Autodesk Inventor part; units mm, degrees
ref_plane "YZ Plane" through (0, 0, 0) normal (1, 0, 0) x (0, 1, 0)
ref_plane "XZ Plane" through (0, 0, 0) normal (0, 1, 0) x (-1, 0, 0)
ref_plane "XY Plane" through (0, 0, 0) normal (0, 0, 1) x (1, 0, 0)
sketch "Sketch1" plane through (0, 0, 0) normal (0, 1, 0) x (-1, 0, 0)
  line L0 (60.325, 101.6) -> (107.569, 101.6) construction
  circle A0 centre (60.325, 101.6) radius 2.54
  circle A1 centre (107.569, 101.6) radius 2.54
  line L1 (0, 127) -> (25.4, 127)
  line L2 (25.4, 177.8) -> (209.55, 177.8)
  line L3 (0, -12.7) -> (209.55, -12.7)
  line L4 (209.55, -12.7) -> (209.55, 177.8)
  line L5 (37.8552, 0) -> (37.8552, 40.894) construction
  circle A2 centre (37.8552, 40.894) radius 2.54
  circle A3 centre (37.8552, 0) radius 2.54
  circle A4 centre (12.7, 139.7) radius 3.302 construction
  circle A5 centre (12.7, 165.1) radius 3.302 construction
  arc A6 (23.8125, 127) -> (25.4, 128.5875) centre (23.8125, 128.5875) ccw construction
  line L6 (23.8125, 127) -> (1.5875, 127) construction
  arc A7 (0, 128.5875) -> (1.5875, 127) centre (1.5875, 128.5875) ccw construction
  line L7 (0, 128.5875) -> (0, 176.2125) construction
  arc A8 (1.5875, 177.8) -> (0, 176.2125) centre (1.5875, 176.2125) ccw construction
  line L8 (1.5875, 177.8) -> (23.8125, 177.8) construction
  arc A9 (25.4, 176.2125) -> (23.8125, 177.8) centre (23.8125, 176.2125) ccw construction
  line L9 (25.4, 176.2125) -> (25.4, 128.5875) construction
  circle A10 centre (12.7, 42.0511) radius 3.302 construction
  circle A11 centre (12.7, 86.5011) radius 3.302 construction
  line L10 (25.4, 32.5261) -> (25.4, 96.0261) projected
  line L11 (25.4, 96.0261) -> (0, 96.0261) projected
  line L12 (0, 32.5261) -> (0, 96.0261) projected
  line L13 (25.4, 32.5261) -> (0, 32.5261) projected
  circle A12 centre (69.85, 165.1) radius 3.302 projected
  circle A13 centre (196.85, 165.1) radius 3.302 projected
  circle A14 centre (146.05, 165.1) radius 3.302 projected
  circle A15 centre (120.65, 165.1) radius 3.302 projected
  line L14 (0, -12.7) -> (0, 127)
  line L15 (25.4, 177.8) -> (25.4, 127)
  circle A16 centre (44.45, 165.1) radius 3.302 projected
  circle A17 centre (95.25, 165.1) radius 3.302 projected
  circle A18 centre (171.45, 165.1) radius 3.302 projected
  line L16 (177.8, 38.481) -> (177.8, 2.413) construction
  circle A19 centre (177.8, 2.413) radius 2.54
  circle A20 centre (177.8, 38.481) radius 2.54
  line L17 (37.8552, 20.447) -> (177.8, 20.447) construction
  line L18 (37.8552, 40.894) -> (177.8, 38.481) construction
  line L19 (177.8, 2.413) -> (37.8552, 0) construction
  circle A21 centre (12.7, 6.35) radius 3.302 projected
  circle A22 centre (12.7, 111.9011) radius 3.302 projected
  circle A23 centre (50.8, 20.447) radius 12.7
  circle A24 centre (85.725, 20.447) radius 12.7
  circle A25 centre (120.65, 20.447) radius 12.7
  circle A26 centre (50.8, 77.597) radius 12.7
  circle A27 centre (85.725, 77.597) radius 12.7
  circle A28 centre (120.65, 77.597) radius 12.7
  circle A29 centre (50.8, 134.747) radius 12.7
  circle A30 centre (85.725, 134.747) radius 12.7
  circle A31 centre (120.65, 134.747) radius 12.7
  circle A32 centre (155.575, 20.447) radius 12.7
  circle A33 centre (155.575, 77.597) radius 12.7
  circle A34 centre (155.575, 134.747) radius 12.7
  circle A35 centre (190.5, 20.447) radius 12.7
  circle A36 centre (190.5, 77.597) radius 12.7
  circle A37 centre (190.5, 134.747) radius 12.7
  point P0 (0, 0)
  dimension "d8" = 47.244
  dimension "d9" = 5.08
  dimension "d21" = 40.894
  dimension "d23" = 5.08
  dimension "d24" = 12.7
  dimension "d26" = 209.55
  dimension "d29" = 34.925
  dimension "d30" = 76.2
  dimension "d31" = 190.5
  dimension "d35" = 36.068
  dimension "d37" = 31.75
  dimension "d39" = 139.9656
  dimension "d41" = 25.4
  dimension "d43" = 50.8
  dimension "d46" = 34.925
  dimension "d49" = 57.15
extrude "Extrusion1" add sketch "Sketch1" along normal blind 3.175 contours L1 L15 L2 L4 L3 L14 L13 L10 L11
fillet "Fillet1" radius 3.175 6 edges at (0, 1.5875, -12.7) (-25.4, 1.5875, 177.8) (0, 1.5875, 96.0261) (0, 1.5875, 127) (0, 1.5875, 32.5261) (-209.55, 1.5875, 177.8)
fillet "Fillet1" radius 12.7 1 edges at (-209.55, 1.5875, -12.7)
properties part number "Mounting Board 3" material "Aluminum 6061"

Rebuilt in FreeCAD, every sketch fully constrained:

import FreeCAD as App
import Part
import Sketcher
from FreeCAD import Vector
Q = App.Units.Quantity


def edges_at(feature, points):
    """Names of the edges that pass closest to the given points."""
    edges = feature.Shape.Edges
    near = lambda p: min(range(len(edges)), key=lambda i: edges[i].distToShape(Part.Vertex(*p))[0])
    return sorted({f"Edge{near(p) + 1}" for p in points})

doc = App.newDocument("Part")
body = doc.addObject("PartDesign::Body", "Body")

sketch1 = body.newObject("Sketcher::SketchObject", "Sketch")
sketch1.AttachmentSupport = (doc.getObject("XZ_Plane"), [""])
sketch1.MapMode = "FlatFace"
sketch1.addGeometry([
    Part.LineSegment(Vector(-25.4, 127, 0), Vector(0, 127, 0)),
    Part.LineSegment(Vector(0, 127, 0), Vector(0, 96.0261, 0)),
    Part.LineSegment(Vector(0, 96.0261, 0), Vector(-25.4, 96.0261, 0)),
    Part.LineSegment(Vector(-25.4, 96.0261, 0), Vector(-25.4, 32.5261, 0)),
    Part.LineSegment(Vector(-25.4, 32.5261, 0), Vector(0, 32.5261, 0)),
    Part.LineSegment(Vector(0, 32.5261, 0), Vector(0, -12.7, 0)),
    Part.LineSegment(Vector(0, -12.7, 0), Vector(-209.55, -12.7, 0)),
    Part.LineSegment(Vector(-209.55, -12.7, 0), Vector(-209.55, 177.8, 0)),
    Part.LineSegment(Vector(-209.55, 177.8, 0), Vector(-25.4, 177.8, 0)),
    Part.LineSegment(Vector(-25.4, 177.8, 0), Vector(-25.4, 127, 0)),
    Part.Circle(Vector(-12.7, 6.35, 0), Vector(0, 0, 1), 3.302),
    Part.Circle(Vector(-37.8552, 0, 0), Vector(0, 0, 1), 2.54),
    Part.Circle(Vector(-50.8, 20.447, 0), Vector(0, 0, 1), 12.7),
    Part.Circle(Vector(-85.725, 20.447, 0), Vector(0, 0, 1), 12.7),
    Part.Circle(Vector(-37.8552, 40.894, 0), Vector(0, 0, 1), 2.54),
    Part.Circle(Vector(-50.8, 77.597, 0), Vector(0, 0, 1), 12.7),
    Part.Circle(Vector(-85.725, 77.597, 0), Vector(0, 0, 1), 12.7),
    Part.Circle(Vector(-120.65, 20.447, 0), Vector(0, 0, 1), 12.7),
    Part.Circle(Vector(-155.575, 20.447, 0), Vector(0, 0, 1), 12.7),
    Part.Circle(Vector(-177.8, 2.413, 0), Vector(0, 0, 1), 2.54),
    Part.Circle(Vector(-190.5, 20.447, 0), Vector(0, 0, 1), 12.7),
    Part.Circle(Vector(-120.65, 77.597, 0), Vector(0, 0, 1), 12.7),
    Part.Circle(Vector(-155.575, 77.597, 0), Vector(0, 0, 1), 12.7),
    Part.Circle(Vector(-177.8, 38.481, 0), Vector(0, 0, 1), 2.54),
    Part.Circle(Vector(-190.5, 77.597, 0), Vector(0, 0, 1), 12.7),
    Part.Circle(Vector(-12.7, 111.9011, 0), Vector(0, 0, 1), 3.302),
    Part.Circle(Vector(-60.325, 101.6, 0), Vector(0, 0, 1), 2.54),
    Part.Circle(Vector(-50.8, 134.747, 0), Vector(0, 0, 1), 12.7),
    Part.Circle(Vector(-44.45, 165.1, 0), Vector(0, 0, 1), 3.302),
    Part.Circle(Vector(-85.725, 134.747, 0), Vector(0, 0, 1), 12.7),
    Part.Circle(Vector(-69.85, 165.1, 0), Vector(0, 0, 1), 3.302),
    Part.Circle(Vector(-95.25, 165.1, 0), Vector(0, 0, 1), 3.302),
    Part.Circle(Vector(-107.569, 101.6, 0), Vector(0, 0, 1), 2.54),
    Part.Circle(Vector(-120.65, 134.747, 0), Vector(0, 0, 1), 12.7),
    Part.Circle(Vector(-155.575, 134.747, 0), Vector(0, 0, 1), 12.7),
    Part.Circle(Vector(-120.65, 165.1, 0), Vector(0, 0, 1), 3.302),
    Part.Circle(Vector(-146.05, 165.1, 0), Vector(0, 0, 1), 3.302),
    Part.Circle(Vector(-190.5, 134.747, 0), Vector(0, 0, 1), 12.7),
    Part.Circle(Vector(-171.45, 165.1, 0), Vector(0, 0, 1), 3.302),
    Part.Circle(Vector(-196.85, 165.1, 0), Vector(0, 0, 1), 3.302),
], False)
sketch1.addConstraint([
    Sketcher.Constraint("Coincident", 0, 2, 1, 1),
    Sketcher.Constraint("Coincident", 1, 2, 2, 1),
    Sketcher.Constraint("Coincident", 2, 2, 3, 1),
    Sketcher.Constraint("Coincident", 3, 2, 4, 1),
    Sketcher.Constraint("Coincident", 4, 2, 5, 1),
    Sketcher.Constraint("Coincident", 5, 2, 6, 1),
    Sketcher.Constraint("Coincident", 6, 2, 7, 1),
    Sketcher.Constraint("Coincident", 7, 2, 8, 1),
    Sketcher.Constraint("Coincident", 8, 2, 9, 1),
    Sketcher.Constraint("Coincident", 9, 2, 0, 1),
    Sketcher.Constraint("Horizontal", 0),
    Sketcher.Constraint("Vertical", 1),
    Sketcher.Constraint("Horizontal", 2),
    Sketcher.Constraint("Vertical", 3),
    Sketcher.Constraint("Horizontal", 4),
    Sketcher.Constraint("Vertical", 5),
    Sketcher.Constraint("Horizontal", 6),
    Sketcher.Constraint("Vertical", 7),
    Sketcher.Constraint("Horizontal", 8),
    Sketcher.Constraint("Vertical", 9),
    Sketcher.Constraint("Equal", 12, 13),
    Sketcher.Constraint("Equal", 11, 14),
    Sketcher.Constraint("Equal", 13, 15),
    Sketcher.Constraint("Equal", 15, 16),
    Sketcher.Constraint("Equal", 16, 17),
    Sketcher.Constraint("Equal", 17, 18),
    Sketcher.Constraint("Equal", 14, 19),
    Sketcher.Constraint("Equal", 18, 20),
    Sketcher.Constraint("Equal", 20, 21),
    Sketcher.Constraint("Equal", 21, 22),
    Sketcher.Constraint("Equal", 19, 23),
    Sketcher.Constraint("Equal", 22, 24),
    Sketcher.Constraint("Equal", 10, 25),
    Sketcher.Constraint("Equal", 23, 26),
    Sketcher.Constraint("Equal", 24, 27),
    Sketcher.Constraint("Equal", 25, 28),
    Sketcher.Constraint("Equal", 27, 29),
    Sketcher.Constraint("Equal", 28, 30),
    Sketcher.Constraint("Equal", 30, 31),
    Sketcher.Constraint("Equal", 26, 32),
    Sketcher.Constraint("Equal", 29, 33),
    Sketcher.Constraint("Equal", 33, 34),
    Sketcher.Constraint("Equal", 31, 35),
    Sketcher.Constraint("Equal", 35, 36),
    Sketcher.Constraint("Equal", 34, 37),
    Sketcher.Constraint("Equal", 36, 38),
    Sketcher.Constraint("Equal", 38, 39),
    Sketcher.Constraint("PointOnObject", 11, 3, -1),
    Sketcher.Constraint("PointOnObject", 0, 2, -2),
    Sketcher.Constraint("PointOnObject", 4, 2, -2),
    Sketcher.Constraint("Horizontal", 12, 3, 13, 3),
    Sketcher.Constraint("Horizontal", 15, 3, 16, 3),
    Sketcher.Constraint("Horizontal", 13, 3, 17, 3),
    Sketcher.Constraint("Horizontal", 17, 3, 18, 3),
    Sketcher.Constraint("Horizontal", 18, 3, 20, 3),
    Sketcher.Constraint("Horizontal", 16, 3, 21, 3),
    Sketcher.Constraint("Horizontal", 21, 3, 22, 3),
    Sketcher.Constraint("Horizontal", 22, 3, 24, 3),
    Sketcher.Constraint("Horizontal", 27, 3, 29, 3),
    Sketcher.Constraint("Horizontal", 28, 3, 30, 3),
    Sketcher.Constraint("Horizontal", 30, 3, 31, 3),
    Sketcher.Constraint("Horizontal", 26, 3, 32, 3),
    Sketcher.Constraint("Horizontal", 29, 3, 33, 3),
    Sketcher.Constraint("Horizontal", 33, 3, 34, 3),
    Sketcher.Constraint("Horizontal", 31, 3, 35, 3),
    Sketcher.Constraint("Horizontal", 35, 3, 36, 3),
    Sketcher.Constraint("Horizontal", 34, 3, 37, 3),
    Sketcher.Constraint("Horizontal", 36, 3, 38, 3),
    Sketcher.Constraint("Horizontal", 38, 3, 39, 3),
    Sketcher.Constraint("Vertical", 11, 3, 14, 3),
    Sketcher.Constraint("Vertical", 12, 3, 15, 3),
    Sketcher.Constraint("Vertical", 13, 3, 16, 3),
    Sketcher.Constraint("Vertical", 17, 3, 21, 3),
    Sketcher.Constraint("Vertical", 18, 3, 22, 3),
    Sketcher.Constraint("Vertical", 19, 3, 23, 3),
    Sketcher.Constraint("Vertical", 20, 3, 24, 3),
    Sketcher.Constraint("Vertical", 10, 3, 25, 3),
    Sketcher.Constraint("Vertical", 15, 3, 27, 3),
    Sketcher.Constraint("Vertical", 16, 3, 29, 3),
    Sketcher.Constraint("Vertical", 21, 3, 33, 3),
    Sketcher.Constraint("Vertical", 22, 3, 34, 3),
    Sketcher.Constraint("Vertical", 33, 3, 35, 3),
    Sketcher.Constraint("Vertical", 24, 3, 37, 3),
    Sketcher.Constraint("Vertical", 3, 2, 8, 2),
    Sketcher.Constraint("Diameter", 12, Q("1 in")),
    Sketcher.Constraint("Diameter", 11, Q("0.2 in")),
    Sketcher.Constraint("DistanceX", 0, 1, 0, 2, Q("1 in")),
    Sketcher.Constraint("DistanceY", 9, 2, 9, 1, Q("2 in")),
    Sketcher.Constraint("DistanceY", 7, 1, 7, 2, Q("7.5 in")),
    Sketcher.Constraint("DistanceX", 12, 3, -1, 1, Q("2 in")),
    Sketcher.Constraint("DistanceX", 16, 3, 26, 3, Q("1 in")),
    Sketcher.Constraint("DistanceX", 30, 3, 28, 3, Q("1 in")),
    Sketcher.Constraint("DistanceX", 31, 3, 30, 3, Q("1 in")),
    Sketcher.Constraint("DistanceX", 33, 3, 31, 3, Q("1 in")),
    Sketcher.Constraint("DistanceX", 36, 3, 35, 3, Q("1 in")),
    Sketcher.Constraint("DistanceX", 38, 3, 36, 3, Q("1 in")),
    Sketcher.Constraint("DistanceX", 39, 3, 38, 3, Q("1 in")),
    Sketcher.Constraint("DistanceY", 26, 3, 0, 2, Q("1 in")),
    Sketcher.Constraint("DistanceX", 6, 2, 6, 1, Q("8.25 in")),
    Sketcher.Constraint("DistanceX", 10, 3, -1, 1, Q("0.5 in")),
    Sketcher.Constraint("DistanceX", 20, 3, -1, 1, Q("7.5 in")),
    Sketcher.Constraint("DistanceY", 5, 2, -1, 1, Q("0.5 in")),
    Sketcher.Constraint("DistanceX", 20, 3, 19, 3, Q("0.5 in")),
    Sketcher.Constraint("DistanceX", 7, 2, 39, 3, Q("0.5 in")),
    Sketcher.Constraint("DistanceY", 39, 3, 7, 2, Q("0.5 in")),
    Sketcher.Constraint("Diameter", 10, Q("0.26 in")),
    Sketcher.Constraint("DistanceY", -1, 1, 14, 3, Q("1.61 in")),
    Sketcher.Constraint("DistanceY", 12, 3, 15, 3, Q("2.25 in")),
    Sketcher.Constraint("DistanceY", 19, 3, 23, 3, Q("1.42 in")),
    Sketcher.Constraint("DistanceY", 15, 3, 27, 3, Q("2.25 in")),
    Sketcher.Constraint("DistanceX", 32, 3, 26, 3, Q("1.86 in")),
    Sketcher.Constraint("DistanceY", 3, 2, 3, 1, Q("2.5 in")),
    Sketcher.Constraint("DistanceX", 13, 3, 12, 3, Q("1.375 in")),
    Sketcher.Constraint("DistanceX", 18, 3, 17, 3, Q("1.375 in")),
    Sketcher.Constraint("DistanceY", -1, 1, 10, 3, Q("0.25 in")),
    Sketcher.Constraint("DistanceY", 19, 3, 18, 3, Q("0.71 in")),
    Sketcher.Constraint("DistanceY", -1, 1, 12, 3, Q("0.805 in")),
    Sketcher.Constraint("DistanceY", 1, 2, 25, 3, Q("0.625 in")),
    Sketcher.Constraint("DistanceY", 1, 2, 1, 1, 30.974),
    Sketcher.Constraint("DistanceX", 11, 3, -1, 1, 37.8552),
])
pad1 = body.newObject("PartDesign::Pad", "Pad")
pad1.Profile = sketch1
pad1.Length = Q("0.125 in")
pad1.Reversed = True
doc.recompute()

fillet = body.newObject("PartDesign::Fillet", "Fillet")
fillet.Base = (pad1, edges_at(pad1, [
    (0, 1.587, -12.7),
    (-25.4, 1.587, 177.8),
    (0, 1.587, 96.026),
    (0, 1.587, 127),
    (0, 1.587, 32.526),
    (-209.55, 1.587, 177.8),
]))
fillet.Radius = Q("0.125 in")
doc.recompute()

fillet2 = body.newObject("PartDesign::Fillet", "Fillet001")
fillet2.Base = (fillet, edges_at(fillet, [(-209.55, 1.587, -12.7)]))
fillet2.Radius = Q("0.5 in")

doc.recompute()
